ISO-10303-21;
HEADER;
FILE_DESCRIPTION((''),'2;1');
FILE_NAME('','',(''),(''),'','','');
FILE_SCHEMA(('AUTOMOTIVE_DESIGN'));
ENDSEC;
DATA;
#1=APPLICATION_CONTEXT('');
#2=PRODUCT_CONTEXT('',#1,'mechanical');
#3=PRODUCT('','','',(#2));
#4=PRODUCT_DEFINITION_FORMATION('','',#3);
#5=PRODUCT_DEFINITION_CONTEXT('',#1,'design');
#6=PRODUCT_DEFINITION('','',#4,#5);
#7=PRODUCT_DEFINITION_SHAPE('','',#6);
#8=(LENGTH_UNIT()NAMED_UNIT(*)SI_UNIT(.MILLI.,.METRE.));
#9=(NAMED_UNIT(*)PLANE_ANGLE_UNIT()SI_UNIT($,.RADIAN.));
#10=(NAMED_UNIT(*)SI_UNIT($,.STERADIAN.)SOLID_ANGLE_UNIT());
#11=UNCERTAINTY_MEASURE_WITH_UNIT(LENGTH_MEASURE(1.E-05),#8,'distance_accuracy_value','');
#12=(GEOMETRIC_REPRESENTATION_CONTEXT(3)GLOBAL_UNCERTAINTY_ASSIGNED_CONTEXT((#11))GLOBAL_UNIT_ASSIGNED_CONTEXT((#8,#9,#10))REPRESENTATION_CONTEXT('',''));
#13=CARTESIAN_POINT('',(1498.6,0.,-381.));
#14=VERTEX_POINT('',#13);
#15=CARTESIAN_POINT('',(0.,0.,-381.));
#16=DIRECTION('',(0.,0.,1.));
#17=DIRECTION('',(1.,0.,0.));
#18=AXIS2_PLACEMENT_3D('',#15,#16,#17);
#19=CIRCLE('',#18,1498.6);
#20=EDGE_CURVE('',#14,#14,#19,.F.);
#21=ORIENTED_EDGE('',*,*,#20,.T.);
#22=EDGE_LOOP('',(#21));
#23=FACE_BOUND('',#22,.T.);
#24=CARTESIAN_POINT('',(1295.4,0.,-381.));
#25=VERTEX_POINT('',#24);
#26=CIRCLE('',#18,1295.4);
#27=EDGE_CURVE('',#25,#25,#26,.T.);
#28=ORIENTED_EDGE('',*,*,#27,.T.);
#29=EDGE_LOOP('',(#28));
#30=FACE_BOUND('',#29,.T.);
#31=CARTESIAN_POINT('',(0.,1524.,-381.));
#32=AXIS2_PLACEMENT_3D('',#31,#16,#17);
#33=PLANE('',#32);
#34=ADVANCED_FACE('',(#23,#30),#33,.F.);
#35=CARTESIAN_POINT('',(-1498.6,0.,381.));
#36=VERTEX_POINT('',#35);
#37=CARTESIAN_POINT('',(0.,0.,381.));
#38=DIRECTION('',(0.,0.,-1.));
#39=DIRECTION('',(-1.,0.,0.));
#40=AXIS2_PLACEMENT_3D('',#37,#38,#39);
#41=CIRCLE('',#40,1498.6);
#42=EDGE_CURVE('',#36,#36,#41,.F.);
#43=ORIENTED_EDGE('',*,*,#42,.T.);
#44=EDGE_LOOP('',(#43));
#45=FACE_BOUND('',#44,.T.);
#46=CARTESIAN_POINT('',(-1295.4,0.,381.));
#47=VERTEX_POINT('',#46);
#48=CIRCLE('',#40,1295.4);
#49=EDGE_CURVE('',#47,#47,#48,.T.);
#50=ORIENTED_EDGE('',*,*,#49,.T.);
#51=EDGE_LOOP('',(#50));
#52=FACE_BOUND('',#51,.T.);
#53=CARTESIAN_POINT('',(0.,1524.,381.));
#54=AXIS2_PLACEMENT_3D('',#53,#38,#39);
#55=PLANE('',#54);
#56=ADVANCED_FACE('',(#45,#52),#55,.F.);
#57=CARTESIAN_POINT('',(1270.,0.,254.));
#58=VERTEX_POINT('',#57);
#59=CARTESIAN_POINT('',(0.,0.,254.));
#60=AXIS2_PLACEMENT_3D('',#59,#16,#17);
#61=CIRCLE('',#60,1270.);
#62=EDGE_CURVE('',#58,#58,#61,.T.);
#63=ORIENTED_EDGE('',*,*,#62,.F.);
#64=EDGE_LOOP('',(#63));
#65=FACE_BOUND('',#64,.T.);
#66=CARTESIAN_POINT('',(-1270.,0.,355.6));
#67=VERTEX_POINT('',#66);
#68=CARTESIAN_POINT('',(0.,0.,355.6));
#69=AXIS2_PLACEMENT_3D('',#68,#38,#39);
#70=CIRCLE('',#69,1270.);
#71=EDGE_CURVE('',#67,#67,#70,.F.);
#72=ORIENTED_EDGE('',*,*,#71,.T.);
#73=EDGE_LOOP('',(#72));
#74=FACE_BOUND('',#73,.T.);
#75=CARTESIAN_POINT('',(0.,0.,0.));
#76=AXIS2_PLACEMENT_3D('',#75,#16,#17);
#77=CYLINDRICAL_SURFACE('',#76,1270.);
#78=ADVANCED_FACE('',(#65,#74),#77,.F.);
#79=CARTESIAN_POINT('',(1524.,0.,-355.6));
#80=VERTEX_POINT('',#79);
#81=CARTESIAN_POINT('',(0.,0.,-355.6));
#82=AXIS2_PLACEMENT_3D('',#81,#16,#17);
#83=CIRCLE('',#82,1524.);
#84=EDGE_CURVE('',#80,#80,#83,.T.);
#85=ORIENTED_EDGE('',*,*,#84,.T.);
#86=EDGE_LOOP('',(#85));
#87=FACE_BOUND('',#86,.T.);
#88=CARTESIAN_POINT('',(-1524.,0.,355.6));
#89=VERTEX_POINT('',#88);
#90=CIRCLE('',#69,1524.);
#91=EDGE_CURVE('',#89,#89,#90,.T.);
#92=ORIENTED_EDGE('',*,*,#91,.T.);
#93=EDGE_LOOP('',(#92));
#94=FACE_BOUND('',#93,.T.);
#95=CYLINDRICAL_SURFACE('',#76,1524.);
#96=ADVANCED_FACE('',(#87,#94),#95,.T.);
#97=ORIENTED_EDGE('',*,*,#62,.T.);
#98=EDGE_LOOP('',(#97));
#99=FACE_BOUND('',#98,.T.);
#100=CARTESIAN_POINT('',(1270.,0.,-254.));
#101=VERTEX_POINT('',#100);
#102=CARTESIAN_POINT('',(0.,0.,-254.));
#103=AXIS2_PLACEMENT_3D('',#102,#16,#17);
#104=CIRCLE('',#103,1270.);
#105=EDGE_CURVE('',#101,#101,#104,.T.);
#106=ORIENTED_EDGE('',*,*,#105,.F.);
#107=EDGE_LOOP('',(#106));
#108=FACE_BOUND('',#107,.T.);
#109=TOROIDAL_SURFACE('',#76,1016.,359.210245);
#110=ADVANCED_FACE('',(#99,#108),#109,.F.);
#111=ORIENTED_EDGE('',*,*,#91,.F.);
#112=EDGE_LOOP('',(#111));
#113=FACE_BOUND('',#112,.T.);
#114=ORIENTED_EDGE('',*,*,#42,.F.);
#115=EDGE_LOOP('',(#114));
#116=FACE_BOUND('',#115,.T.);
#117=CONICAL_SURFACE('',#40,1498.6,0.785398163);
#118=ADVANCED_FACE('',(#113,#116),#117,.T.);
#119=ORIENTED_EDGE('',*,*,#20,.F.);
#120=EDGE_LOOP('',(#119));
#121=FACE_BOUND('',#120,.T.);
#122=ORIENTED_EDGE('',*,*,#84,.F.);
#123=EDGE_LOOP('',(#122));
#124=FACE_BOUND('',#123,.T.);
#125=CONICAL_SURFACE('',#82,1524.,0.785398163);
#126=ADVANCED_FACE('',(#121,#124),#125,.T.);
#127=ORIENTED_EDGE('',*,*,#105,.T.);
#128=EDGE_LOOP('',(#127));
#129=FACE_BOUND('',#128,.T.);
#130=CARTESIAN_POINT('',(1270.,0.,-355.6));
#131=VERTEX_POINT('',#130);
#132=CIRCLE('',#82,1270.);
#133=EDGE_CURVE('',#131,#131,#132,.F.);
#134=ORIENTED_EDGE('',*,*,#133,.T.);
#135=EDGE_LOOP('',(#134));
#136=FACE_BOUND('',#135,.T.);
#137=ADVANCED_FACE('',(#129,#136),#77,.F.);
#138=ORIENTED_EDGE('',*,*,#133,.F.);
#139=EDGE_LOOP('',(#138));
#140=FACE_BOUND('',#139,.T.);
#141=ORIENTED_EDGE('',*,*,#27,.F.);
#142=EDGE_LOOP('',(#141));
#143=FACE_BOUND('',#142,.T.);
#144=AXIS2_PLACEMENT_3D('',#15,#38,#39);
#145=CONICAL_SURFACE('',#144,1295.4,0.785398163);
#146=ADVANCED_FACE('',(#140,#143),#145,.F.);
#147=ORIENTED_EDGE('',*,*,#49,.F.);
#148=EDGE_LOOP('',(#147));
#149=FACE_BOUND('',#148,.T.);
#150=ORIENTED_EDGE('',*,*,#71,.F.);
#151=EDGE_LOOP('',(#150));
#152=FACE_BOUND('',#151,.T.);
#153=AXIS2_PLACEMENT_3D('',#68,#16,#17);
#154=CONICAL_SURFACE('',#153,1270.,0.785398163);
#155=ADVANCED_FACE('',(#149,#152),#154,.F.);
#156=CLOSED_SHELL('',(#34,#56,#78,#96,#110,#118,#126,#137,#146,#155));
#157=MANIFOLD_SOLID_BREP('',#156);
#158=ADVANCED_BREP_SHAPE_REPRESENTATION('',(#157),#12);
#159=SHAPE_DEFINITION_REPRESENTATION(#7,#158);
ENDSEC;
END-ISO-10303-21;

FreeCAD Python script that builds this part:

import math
import FreeCAD as App
import Part
import Sketcher
Q = App.Units.Quantity


def edges_at(feature, points):
    """Names of the edges that pass closest to the given points."""
    edges = feature.Shape.Edges
    near = lambda p: min(range(len(edges)), key=lambda i: edges[i].distToShape(Part.Vertex(*p))[0])
    return sorted({f"Edge{near(p) + 1}" for p in points})

doc = App.newDocument("Part")
body = doc.addObject("PartDesign::Body", "Body")

# Sketch on YZ plane
sketch1 = body.newObject("Sketcher::SketchObject", "Sketch")
sketch1.AttachmentSupport = (doc.getObject("YZ_Plane"), [""])
sketch1.MapMode = "FlatFace"
sketch1.addGeometry([
    Part.LineSegment(App.Vector(1524, -381, 0), App.Vector(1524, 381, 0)),  # 0
    Part.LineSegment(App.Vector(1524, 381, 0), App.Vector(1270, 381, 0)),  # 1
    Part.LineSegment(App.Vector(1270, 381, 0), App.Vector(1270, 254, 0)),  # 2
    Part.ArcOfCircle(Part.Circle(App.Vector(1016, 0, 0), App.Vector(0, 0, 1), 359.210245), math.radians(-45), math.radians(45)),  # 3
    Part.LineSegment(App.Vector(1270, -254, 0), App.Vector(1270, -381, 0)),  # 4
    Part.LineSegment(App.Vector(1270, -381, 0), App.Vector(1524, -381, 0)),  # 5
], False)
sketch1.addConstraint([
    Sketcher.Constraint("Coincident", 0, 2, 1, 1),
    Sketcher.Constraint("Coincident", 1, 2, 2, 1),
    Sketcher.Constraint("Coincident", 2, 2, 3, 2),
    Sketcher.Constraint("Coincident", 3, 1, 4, 1),
    Sketcher.Constraint("Coincident", 4, 2, 5, 1),
    Sketcher.Constraint("Coincident", 5, 2, 0, 1),
    Sketcher.Constraint("Vertical", 0),
    Sketcher.Constraint("Horizontal", 1),
    Sketcher.Constraint("Vertical", 2),
    Sketcher.Constraint("Vertical", 4),
    Sketcher.Constraint("Horizontal", 5),
    Sketcher.Constraint("Symmetric", 2, 2, 3, 1, -1),
    Sketcher.Constraint("Equal", 2, 4),
    Sketcher.Constraint("DistanceX", 1, 2, 1, 1, Q("10 in")),
    Sketcher.Constraint("DistanceY", 0, 1, 0, 2, Q("30 in")),
    Sketcher.Constraint("DistanceY", 2, 2, 2, 1, Q("5 in")),
    Sketcher.Constraint("DistanceX", -1, 1, 3, 3, Q("40 in")),
    Sketcher.Constraint("DistanceX", -1, 1, 0, 2, Q("60 in")),
])
revolution = body.newObject("PartDesign::Revolution", "Revolution")
revolution.Profile = sketch1
revolution.ReferenceAxis = (sketch1, ["V_Axis"])
revolution.Angle = 360
doc.recompute()

chamfer = body.newObject("PartDesign::Chamfer", "Chamfer")
chamfer.Base = (revolution, edges_at(revolution, [
    (-1270, 0, -381),
    (-1524, 0, -381),
    (-1524, 0, 381),
    (-1270, 0, 381),
]))
chamfer.Size = Q("1 in")

doc.recompute()
